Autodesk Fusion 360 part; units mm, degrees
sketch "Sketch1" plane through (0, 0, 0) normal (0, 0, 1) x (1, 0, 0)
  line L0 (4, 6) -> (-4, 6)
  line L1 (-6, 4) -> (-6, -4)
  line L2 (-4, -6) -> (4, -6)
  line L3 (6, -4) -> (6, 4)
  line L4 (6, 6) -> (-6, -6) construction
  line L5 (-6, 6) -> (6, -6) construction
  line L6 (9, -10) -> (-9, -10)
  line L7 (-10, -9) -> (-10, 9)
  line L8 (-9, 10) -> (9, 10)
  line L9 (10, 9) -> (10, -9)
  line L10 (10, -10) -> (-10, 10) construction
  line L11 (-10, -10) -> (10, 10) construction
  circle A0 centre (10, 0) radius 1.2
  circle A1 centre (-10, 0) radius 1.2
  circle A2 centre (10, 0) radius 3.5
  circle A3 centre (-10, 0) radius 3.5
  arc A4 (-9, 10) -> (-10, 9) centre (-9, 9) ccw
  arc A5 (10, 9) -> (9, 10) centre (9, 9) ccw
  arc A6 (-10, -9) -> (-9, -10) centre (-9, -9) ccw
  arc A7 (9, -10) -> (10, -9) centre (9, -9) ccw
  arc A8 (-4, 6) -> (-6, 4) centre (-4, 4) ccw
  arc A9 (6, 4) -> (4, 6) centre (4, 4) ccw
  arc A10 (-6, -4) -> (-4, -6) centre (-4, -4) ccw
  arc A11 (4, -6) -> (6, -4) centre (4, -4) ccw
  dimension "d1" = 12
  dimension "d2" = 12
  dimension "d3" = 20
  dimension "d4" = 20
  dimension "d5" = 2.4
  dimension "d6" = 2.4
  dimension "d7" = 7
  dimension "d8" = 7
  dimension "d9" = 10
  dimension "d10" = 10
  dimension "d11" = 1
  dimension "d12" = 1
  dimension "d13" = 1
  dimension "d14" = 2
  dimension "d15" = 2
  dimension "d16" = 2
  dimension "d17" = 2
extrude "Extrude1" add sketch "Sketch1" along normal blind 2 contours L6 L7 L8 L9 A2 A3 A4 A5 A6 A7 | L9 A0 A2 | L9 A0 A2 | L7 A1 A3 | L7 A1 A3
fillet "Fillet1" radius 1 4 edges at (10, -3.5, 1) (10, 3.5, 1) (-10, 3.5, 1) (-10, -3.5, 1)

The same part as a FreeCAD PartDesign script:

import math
import FreeCAD as App
import Part
import Sketcher


def edges_at(feature, points):
    """Names of the edges that pass closest to the given points."""
    edges = feature.Shape.Edges
    near = lambda p: min(range(len(edges)), key=lambda i: edges[i].distToShape(Part.Vertex(*p))[0])
    return sorted({f"Edge{near(p) + 1}" for p in points})

doc = App.newDocument("Part")
body = doc.addObject("PartDesign::Body", "Body")

# Sketch on XY plane
sketch1 = doc.addObject("Sketcher::SketchObject", "Sketch")
body.addObject(sketch1)
sketch1.AttachmentSupport = (doc.XY_Plane, [""])
sketch1.MapMode = "FlatFace"
sketch1.addGeometry(Part.LineSegment(App.Vector(-9, -10, 0), App.Vector(9, -10, 0)), False)
sketch1.addGeometry(Part.ArcOfCircle(Part.Circle(App.Vector(9, -9, 0), App.Vector(0, 0, 1), 1), math.radians(-90), math.radians(0)), False)
sketch1.addGeometry(Part.LineSegment(App.Vector(10, -9, 0), App.Vector(10, -3.5, 0)), False)
sketch1.addGeometry(Part.ArcOfCircle(Part.Circle(App.Vector(10, 0, 0), App.Vector(0, 0, 1), 3.5), math.radians(-90), math.radians(90)), False)
sketch1.addGeometry(Part.LineSegment(App.Vector(10, 3.5, 0), App.Vector(10, 9, 0)), False)
sketch1.addGeometry(Part.ArcOfCircle(Part.Circle(App.Vector(9, 9, 0), App.Vector(0, 0, 1), 1), math.radians(0), math.radians(90)), False)
sketch1.addGeometry(Part.LineSegment(App.Vector(9, 10, 0), App.Vector(-9, 10, 0)), False)
sketch1.addGeometry(Part.ArcOfCircle(Part.Circle(App.Vector(-9, 9, 0), App.Vector(0, 0, 1), 1), math.radians(90), math.radians(180)), False)
sketch1.addGeometry(Part.LineSegment(App.Vector(-10, 9, 0), App.Vector(-10, 3.5, 0)), False)
sketch1.addGeometry(Part.ArcOfCircle(Part.Circle(App.Vector(-10, 0, 0), App.Vector(0, 0, 1), 3.5), math.radians(90), math.radians(270)), False)
sketch1.addGeometry(Part.LineSegment(App.Vector(-10, -3.5, 0), App.Vector(-10, -9, 0)), False)
sketch1.addGeometry(Part.ArcOfCircle(Part.Circle(App.Vector(-9, -9, 0), App.Vector(0, 0, 1), 1), math.radians(180), math.radians(270)), False)
sketch1.addGeometry(Part.LineSegment(App.Vector(-4, 6, 0), App.Vector(4, 6, 0)), False)
sketch1.addGeometry(Part.ArcOfCircle(Part.Circle(App.Vector(4, 4, 0), App.Vector(0, 0, 1), 2), math.radians(0), math.radians(90)), False)
sketch1.addGeometry(Part.LineSegment(App.Vector(6, 4, 0), App.Vector(6, -4, 0)), False)
sketch1.addGeometry(Part.ArcOfCircle(Part.Circle(App.Vector(4, -4, 0), App.Vector(0, 0, 1), 2), math.radians(-90), math.radians(0)), False)
sketch1.addGeometry(Part.LineSegment(App.Vector(4, -6, 0), App.Vector(-4, -6, 0)), False)
sketch1.addGeometry(Part.ArcOfCircle(Part.Circle(App.Vector(-4, -4, 0), App.Vector(0, 0, 1), 2), math.radians(180), math.radians(270)), False)
sketch1.addGeometry(Part.LineSegment(App.Vector(-6, -4, 0), App.Vector(-6, 4, 0)), False)
sketch1.addGeometry(Part.ArcOfCircle(Part.Circle(App.Vector(-4, 4, 0), App.Vector(0, 0, 1), 2), math.radians(90), math.radians(180)), False)
sketch1.addGeometry(Part.Circle(App.Vector(-10, 0, 0), App.Vector(0, 0, 1), 1.2), False)
sketch1.addGeometry(Part.Circle(App.Vector(10, 0, 0), App.Vector(0, 0, 1), 1.2), False)
sketch1.addConstraint(Sketcher.Constraint("Tangent", 0, 2, 1, 1))
sketch1.addConstraint(Sketcher.Constraint("Tangent", 1, 2, 2, 1))
sketch1.addConstraint(Sketcher.Constraint("Coincident", 2, 2, 3, 1))
sketch1.addConstraint(Sketcher.Constraint("Coincident", 3, 2, 4, 1))
sketch1.addConstraint(Sketcher.Constraint("Tangent", 4, 2, 5, 1))
sketch1.addConstraint(Sketcher.Constraint("Tangent", 5, 2, 6, 1))
sketch1.addConstraint(Sketcher.Constraint("Tangent", 6, 2, 7, 1))
sketch1.addConstraint(Sketcher.Constraint("Tangent", 7, 2, 8, 1))
sketch1.addConstraint(Sketcher.Constraint("Coincident", 8, 2, 9, 1))
sketch1.addConstraint(Sketcher.Constraint("Coincident", 9, 2, 10, 1))
sketch1.addConstraint(Sketcher.Constraint("Tangent", 10, 2, 11, 1))
sketch1.addConstraint(Sketcher.Constraint("Tangent", 11, 2, 0, 1))
sketch1.addConstraint(Sketcher.Constraint("Tangent", 12, 2, 13, 2))
sketch1.addConstraint(Sketcher.Constraint("Tangent", 13, 1, 14, 1))
sketch1.addConstraint(Sketcher.Constraint("Tangent", 14, 2, 15, 2))
sketch1.addConstraint(Sketcher.Constraint("Tangent", 15, 1, 16, 1))
sketch1.addConstraint(Sketcher.Constraint("Tangent", 16, 2, 17, 2))
sketch1.addConstraint(Sketcher.Constraint("Tangent", 17, 1, 18, 1))
sketch1.addConstraint(Sketcher.Constraint("Tangent", 18, 2, 19, 2))
sketch1.addConstraint(Sketcher.Constraint("Tangent", 19, 1, 12, 1))
sketch1.addConstraint(Sketcher.Constraint("Horizontal", 0))
sketch1.addConstraint(Sketcher.Constraint("Vertical", 2))
sketch1.addConstraint(Sketcher.Constraint("Vertical", 4))
sketch1.addConstraint(Sketcher.Constraint("Horizontal", 6))
sketch1.addConstraint(Sketcher.Constraint("Vertical", 8))
sketch1.addConstraint(Sketcher.Constraint("Vertical", 10))
sketch1.addConstraint(Sketcher.Constraint("Horizontal", 12))
sketch1.addConstraint(Sketcher.Constraint("Vertical", 14))
sketch1.addConstraint(Sketcher.Constraint("Horizontal", 16))
sketch1.addConstraint(Sketcher.Constraint("Vertical", 18))
sketch1.addConstraint(Sketcher.Constraint("Coincident", 20, 3, 9, 3))
sketch1.addConstraint(Sketcher.Constraint("Coincident", 21, 3, 3, 3))
sketch1.addConstraint(Sketcher.Constraint("Equal", 1, 5))
sketch1.addConstraint(Sketcher.Constraint("Equal", 5, 7))
sketch1.addConstraint(Sketcher.Constraint("Equal", 3, 9))
sketch1.addConstraint(Sketcher.Constraint("Equal", 7, 11))
sketch1.addConstraint(Sketcher.Constraint("Equal", 13, 15))
sketch1.addConstraint(Sketcher.Constraint("Equal", 15, 17))
sketch1.addConstraint(Sketcher.Constraint("Equal", 17, 19))
sketch1.addConstraint(Sketcher.Constraint("Equal", 20, 21))
sketch1.addConstraint(Sketcher.Constraint("Symmetric", 1, 3, 7, 3, -1, 1))
sketch1.addConstraint(Sketcher.Constraint("Symmetric", 3, 3, 9, 3, -1, 1))
sketch1.addConstraint(Sketcher.Constraint("Symmetric", 13, 3, 17, 3, -1, 1))
sketch1.addConstraint(Sketcher.Constraint("Symmetric", 3, 2, 8, 2, -2))
sketch1.addConstraint(Sketcher.Constraint("Vertical", 7, 3, 11, 3))
sketch1.addConstraint(Sketcher.Constraint("Vertical", 21, 3, 1, 2))
sketch1.addConstraint(Sketcher.Constraint("Equal", 16, 14))
sketch1.addConstraint(Sketcher.Constraint("Radius", 1, 1.0))
sketch1.addConstraint(Sketcher.Constraint("Radius", 13, 2.0))
sketch1.addConstraint(Sketcher.Constraint("Diameter", 20, 2.4))
sketch1.addConstraint(Sketcher.Constraint("Radius", 3, 3.5))
sketch1.addConstraint(Sketcher.Constraint("DistanceX", -1, 1, 3, 3, 10.0))
sketch1.addConstraint(Sketcher.Constraint("DistanceY", 0, 2, -1, 1, 10.0))
sketch1.addConstraint(Sketcher.Constraint("DistanceX", 12, 1, 12, 2, 8.0))
pad1 = doc.addObject("PartDesign::Pad", "Pad")
body.addObject(pad1)
pad1.Profile = sketch1
pad1.Length = 2
doc.recompute()

fillet = doc.addObject("PartDesign::Fillet", "Fillet")
body.addObject(fillet)
fillet.Base = (pad1, edges_at(pad1, [
    (10, -3.5, 1),
    (10, 3.5, 1),
    (-10, 3.5, 1),
    (-10, -3.5, 1),
]))
fillet.Radius = 1

doc.recompute()
